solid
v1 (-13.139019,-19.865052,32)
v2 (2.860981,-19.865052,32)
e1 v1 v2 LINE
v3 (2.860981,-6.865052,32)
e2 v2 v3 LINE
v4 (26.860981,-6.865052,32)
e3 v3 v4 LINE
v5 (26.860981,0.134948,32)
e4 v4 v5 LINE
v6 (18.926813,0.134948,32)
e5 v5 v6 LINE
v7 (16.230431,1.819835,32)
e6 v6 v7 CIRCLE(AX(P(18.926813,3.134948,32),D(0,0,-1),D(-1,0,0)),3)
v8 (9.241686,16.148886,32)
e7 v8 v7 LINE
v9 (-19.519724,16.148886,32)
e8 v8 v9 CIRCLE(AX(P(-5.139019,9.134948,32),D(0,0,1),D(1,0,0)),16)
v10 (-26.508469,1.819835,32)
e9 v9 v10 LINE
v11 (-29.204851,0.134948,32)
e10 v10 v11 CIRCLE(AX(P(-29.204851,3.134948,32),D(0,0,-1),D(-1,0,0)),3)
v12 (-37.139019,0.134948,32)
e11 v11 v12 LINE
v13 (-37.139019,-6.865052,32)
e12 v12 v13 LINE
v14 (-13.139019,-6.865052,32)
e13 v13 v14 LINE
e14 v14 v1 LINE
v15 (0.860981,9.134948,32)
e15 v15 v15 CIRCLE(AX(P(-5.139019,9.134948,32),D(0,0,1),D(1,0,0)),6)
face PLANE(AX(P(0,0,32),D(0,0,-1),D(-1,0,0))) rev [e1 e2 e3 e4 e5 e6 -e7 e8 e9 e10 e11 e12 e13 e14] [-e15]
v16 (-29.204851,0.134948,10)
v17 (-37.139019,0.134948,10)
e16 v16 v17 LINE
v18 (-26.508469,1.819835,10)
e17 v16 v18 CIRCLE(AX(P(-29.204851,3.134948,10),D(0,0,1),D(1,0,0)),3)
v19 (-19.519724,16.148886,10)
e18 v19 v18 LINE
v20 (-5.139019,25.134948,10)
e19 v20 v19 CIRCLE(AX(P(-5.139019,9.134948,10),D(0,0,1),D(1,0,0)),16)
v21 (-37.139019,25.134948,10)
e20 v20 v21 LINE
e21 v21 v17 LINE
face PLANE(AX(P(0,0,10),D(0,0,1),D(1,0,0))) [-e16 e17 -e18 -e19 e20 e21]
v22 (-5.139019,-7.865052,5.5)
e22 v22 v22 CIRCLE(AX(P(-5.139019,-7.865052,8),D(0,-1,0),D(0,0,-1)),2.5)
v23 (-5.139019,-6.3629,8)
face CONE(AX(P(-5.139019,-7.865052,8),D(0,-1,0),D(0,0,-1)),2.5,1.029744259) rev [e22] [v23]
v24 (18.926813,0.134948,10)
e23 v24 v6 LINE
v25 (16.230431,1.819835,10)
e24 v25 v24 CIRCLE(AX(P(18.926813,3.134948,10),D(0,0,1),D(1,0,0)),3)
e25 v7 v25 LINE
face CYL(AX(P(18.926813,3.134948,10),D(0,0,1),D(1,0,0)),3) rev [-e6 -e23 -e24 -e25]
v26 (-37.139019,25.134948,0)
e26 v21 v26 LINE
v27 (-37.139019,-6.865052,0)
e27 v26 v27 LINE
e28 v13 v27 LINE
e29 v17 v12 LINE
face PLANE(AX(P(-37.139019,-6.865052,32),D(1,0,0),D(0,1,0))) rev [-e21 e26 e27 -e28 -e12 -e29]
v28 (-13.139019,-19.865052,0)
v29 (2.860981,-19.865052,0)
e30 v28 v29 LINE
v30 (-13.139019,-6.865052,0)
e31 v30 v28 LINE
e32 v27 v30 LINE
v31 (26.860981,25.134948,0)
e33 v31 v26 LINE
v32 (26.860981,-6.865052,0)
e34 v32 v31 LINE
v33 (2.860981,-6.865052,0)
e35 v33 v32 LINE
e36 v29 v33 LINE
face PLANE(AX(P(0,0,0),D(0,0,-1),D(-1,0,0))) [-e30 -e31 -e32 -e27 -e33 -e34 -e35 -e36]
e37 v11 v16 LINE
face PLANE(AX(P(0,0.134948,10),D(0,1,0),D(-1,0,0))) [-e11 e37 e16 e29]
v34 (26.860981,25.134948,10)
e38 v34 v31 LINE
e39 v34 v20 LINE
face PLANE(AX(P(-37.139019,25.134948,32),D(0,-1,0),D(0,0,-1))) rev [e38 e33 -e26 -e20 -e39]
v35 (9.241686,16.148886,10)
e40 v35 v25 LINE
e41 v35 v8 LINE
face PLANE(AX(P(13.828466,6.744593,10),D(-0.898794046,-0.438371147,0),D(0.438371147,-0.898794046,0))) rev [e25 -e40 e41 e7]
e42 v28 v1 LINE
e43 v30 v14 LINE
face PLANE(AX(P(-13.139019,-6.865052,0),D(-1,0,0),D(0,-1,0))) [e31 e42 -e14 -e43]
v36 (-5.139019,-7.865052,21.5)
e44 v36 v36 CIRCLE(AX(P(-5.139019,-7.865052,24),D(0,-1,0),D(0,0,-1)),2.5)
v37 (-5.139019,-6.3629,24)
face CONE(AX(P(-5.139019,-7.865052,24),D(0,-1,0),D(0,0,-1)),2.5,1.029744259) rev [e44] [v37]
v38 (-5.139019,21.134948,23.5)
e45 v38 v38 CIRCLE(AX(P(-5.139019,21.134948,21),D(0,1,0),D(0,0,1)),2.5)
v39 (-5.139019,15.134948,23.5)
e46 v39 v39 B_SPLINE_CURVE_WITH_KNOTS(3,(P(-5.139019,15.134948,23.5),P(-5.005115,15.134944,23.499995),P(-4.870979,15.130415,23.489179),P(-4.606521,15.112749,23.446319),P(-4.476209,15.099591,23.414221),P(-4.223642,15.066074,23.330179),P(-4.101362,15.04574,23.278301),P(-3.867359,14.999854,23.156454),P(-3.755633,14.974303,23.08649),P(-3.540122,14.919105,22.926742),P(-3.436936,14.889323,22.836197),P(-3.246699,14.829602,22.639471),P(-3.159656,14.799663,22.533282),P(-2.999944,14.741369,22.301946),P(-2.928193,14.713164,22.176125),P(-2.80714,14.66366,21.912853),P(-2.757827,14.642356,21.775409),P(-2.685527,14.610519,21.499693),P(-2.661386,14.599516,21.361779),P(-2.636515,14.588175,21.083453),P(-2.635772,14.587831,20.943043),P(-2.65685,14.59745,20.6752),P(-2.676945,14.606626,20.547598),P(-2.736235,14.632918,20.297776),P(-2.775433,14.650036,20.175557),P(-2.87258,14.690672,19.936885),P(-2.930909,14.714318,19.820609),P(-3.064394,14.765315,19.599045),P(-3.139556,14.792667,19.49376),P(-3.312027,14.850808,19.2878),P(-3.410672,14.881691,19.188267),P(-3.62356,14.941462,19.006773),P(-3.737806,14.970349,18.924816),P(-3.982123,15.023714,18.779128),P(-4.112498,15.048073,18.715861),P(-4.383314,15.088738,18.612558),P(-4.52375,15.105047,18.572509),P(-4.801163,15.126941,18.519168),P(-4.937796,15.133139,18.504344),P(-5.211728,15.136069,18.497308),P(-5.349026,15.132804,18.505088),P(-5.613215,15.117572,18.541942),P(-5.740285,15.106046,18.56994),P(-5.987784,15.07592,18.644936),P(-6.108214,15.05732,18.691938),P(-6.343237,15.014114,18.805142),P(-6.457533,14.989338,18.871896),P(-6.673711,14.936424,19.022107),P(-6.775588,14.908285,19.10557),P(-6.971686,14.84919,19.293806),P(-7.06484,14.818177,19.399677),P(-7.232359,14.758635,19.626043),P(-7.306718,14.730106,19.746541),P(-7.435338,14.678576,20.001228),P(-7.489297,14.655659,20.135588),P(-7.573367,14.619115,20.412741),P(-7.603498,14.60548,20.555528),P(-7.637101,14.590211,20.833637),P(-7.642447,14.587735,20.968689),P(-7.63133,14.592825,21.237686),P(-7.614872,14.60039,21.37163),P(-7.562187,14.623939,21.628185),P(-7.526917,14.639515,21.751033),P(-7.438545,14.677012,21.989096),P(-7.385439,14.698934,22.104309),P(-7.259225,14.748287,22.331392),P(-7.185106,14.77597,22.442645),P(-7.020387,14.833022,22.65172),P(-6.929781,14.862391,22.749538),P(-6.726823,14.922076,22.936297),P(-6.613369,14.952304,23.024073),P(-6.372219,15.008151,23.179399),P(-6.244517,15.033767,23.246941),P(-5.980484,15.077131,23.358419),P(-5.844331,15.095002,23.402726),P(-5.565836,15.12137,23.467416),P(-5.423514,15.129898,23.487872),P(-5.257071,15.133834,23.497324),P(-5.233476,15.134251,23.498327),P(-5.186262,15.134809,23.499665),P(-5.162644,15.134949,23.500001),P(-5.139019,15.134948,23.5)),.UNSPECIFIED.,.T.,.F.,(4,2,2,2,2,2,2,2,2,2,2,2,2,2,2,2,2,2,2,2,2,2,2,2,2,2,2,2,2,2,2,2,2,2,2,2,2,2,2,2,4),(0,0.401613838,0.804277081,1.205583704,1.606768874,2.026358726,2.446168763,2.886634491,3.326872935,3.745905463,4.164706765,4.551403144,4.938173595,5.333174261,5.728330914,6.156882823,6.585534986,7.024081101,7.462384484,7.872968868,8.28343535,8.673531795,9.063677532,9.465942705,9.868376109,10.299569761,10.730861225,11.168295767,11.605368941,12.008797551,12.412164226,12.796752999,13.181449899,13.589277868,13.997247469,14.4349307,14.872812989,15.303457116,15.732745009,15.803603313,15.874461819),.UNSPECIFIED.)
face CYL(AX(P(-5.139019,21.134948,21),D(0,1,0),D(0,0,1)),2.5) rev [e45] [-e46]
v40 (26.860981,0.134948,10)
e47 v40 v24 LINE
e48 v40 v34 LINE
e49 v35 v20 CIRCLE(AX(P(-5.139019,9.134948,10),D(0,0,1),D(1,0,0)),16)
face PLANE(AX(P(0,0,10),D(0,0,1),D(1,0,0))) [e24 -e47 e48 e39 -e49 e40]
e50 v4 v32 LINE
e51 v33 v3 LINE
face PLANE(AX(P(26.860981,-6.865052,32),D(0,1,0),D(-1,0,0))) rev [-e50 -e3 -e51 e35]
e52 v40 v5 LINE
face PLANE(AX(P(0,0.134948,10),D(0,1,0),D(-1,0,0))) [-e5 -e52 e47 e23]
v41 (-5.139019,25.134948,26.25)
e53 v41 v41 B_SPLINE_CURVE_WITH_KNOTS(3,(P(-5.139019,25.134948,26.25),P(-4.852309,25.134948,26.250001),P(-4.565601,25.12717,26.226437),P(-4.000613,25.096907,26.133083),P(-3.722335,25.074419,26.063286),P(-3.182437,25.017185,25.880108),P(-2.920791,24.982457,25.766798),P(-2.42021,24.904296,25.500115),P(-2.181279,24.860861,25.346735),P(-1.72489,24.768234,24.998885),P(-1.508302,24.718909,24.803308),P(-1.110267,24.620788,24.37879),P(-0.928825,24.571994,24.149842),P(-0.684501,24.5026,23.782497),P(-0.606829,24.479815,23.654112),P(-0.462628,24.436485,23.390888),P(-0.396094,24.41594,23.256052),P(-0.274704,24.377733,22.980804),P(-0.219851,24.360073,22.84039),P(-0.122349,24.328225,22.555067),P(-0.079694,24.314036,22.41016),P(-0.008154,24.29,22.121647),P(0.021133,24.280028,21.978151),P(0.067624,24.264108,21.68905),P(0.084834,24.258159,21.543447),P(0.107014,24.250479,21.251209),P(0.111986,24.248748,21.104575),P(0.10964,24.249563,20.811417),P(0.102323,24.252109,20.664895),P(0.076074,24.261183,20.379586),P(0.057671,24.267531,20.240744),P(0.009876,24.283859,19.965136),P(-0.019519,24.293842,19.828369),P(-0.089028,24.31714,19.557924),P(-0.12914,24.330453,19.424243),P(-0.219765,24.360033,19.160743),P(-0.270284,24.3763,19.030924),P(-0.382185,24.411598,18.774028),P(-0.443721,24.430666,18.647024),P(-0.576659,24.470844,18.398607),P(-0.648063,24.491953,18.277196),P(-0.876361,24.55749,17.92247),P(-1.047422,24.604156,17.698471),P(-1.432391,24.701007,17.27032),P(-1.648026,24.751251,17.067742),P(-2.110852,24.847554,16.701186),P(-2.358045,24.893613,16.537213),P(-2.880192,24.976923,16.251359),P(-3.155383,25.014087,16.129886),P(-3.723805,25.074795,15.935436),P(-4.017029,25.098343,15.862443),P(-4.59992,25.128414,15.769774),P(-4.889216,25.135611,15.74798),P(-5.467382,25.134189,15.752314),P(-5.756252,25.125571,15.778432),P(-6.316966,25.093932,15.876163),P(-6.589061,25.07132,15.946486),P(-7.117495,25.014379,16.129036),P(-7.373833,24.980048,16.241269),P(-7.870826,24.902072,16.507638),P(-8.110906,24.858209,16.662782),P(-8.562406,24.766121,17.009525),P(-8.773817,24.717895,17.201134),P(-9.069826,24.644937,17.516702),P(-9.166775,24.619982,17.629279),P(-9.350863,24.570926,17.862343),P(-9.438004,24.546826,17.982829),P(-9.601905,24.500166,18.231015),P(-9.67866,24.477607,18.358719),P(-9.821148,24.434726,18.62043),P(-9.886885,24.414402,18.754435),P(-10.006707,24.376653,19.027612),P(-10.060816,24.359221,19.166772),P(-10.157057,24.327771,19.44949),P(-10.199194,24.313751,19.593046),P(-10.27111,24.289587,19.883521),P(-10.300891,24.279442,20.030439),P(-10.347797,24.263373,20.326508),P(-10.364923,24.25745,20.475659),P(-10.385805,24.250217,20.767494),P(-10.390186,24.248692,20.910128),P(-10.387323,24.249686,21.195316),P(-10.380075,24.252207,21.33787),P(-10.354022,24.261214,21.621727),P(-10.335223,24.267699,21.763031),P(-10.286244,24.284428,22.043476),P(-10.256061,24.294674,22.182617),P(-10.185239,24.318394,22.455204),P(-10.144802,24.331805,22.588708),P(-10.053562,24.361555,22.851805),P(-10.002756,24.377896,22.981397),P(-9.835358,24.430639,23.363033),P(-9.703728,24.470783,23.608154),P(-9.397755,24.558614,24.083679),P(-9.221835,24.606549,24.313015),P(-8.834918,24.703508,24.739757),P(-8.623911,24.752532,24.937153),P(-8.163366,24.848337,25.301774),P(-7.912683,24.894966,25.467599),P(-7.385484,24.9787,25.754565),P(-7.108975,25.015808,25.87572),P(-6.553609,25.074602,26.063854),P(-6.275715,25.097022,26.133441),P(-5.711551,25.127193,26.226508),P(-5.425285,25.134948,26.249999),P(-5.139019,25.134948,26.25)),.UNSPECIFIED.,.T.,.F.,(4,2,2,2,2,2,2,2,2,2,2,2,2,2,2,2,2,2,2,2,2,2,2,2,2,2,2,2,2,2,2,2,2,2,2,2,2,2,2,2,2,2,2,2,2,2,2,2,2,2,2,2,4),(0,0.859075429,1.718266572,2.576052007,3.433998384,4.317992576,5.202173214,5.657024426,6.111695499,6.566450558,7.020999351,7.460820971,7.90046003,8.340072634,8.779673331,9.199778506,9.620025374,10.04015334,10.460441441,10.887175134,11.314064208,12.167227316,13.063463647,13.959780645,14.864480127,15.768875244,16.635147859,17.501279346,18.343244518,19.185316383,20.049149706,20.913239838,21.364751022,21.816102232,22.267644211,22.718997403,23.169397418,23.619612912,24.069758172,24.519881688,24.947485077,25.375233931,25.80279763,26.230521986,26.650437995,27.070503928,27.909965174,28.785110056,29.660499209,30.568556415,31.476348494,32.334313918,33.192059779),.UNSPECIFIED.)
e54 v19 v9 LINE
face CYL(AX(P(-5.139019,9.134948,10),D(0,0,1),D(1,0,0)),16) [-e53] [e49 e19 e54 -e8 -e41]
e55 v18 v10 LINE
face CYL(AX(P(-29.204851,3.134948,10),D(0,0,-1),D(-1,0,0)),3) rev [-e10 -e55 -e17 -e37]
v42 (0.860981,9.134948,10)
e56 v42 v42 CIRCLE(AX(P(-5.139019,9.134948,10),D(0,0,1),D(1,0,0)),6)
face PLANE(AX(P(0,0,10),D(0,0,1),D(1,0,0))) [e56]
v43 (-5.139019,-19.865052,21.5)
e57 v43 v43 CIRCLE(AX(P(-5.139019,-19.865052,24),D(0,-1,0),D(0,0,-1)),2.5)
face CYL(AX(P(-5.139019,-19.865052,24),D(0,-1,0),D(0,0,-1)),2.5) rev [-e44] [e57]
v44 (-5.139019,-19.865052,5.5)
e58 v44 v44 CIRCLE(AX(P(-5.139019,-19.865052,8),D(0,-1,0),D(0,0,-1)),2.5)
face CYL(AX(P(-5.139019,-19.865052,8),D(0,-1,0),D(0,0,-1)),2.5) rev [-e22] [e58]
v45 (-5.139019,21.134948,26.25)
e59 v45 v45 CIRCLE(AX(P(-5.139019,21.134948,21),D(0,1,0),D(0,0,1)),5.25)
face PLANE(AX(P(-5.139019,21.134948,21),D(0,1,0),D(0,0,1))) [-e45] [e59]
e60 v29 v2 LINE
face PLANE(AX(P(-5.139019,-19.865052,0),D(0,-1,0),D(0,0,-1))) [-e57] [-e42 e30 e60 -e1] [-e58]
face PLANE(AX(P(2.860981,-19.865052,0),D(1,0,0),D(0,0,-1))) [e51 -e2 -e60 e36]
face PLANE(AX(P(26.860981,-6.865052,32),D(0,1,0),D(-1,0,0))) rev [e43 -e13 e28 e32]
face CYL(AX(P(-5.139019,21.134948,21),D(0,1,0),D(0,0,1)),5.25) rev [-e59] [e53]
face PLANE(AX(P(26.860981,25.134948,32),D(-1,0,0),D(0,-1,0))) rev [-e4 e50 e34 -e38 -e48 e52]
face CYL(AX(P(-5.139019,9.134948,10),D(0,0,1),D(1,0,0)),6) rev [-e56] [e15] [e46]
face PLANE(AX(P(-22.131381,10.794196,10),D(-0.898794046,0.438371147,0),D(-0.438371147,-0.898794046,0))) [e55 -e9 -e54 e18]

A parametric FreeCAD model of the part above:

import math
import FreeCAD as App
import Part
import Sketcher
Q = App.Units.Quantity


def edges_at(feature, points):
    """Names of the edges that pass closest to the given points."""
    edges = feature.Shape.Edges
    near = lambda p: min(range(len(edges)), key=lambda i: edges[i].distToShape(Part.Vertex(*p))[0])
    return sorted({f"Edge{near(p) + 1}" for p in points})


def add_polygon(sketch, points):
    """Adds a closed chain of lines whose ends are joined by coincident constraints."""
    first, n = sketch.GeometryCount, len(points)
    for a, b in zip(points, points[1:] + points[:1]):
        sketch.addGeometry(Part.LineSegment(App.Vector(*a, 0), App.Vector(*b, 0)), False)
    for i in range(n):
        sketch.addConstraint(Sketcher.Constraint("Coincident", first + i, 2, first + (i + 1) % n, 1))

doc = App.newDocument("Part")
body = doc.addObject("PartDesign::Body", "Body")

# Sketch on XY plane
sketch1 = body.newObject("Sketcher::SketchObject", "Sketch")
sketch1.AttachmentSupport = (doc.getObject("XY_Plane"), [""])
sketch1.MapMode = "FlatFace"
add_polygon(sketch1, [(-37, 25), (-37, -7), (27, -7), (27, 25)])  # lines 0-3
sketch1.addConstraint([
    Sketcher.Constraint("Vertical", 0),
    Sketcher.Constraint("Horizontal", 1),
    Sketcher.Constraint("Vertical", 2),
    Sketcher.Constraint("Horizontal", 3),
    Sketcher.Constraint("DistanceX", 1, 1, 1, 2, Q("64 mm")),
    Sketcher.Constraint("DistanceY", 0, 2, 0, 1, Q("32 mm")),
    Sketcher.Constraint("DistanceX", 0, 2, -1, 1, Q("37.139019 mm")),
    Sketcher.Constraint("DistanceY", 0, 2, -1, 1, Q("6.865052 mm")),
])
pad1 = body.newObject("PartDesign::Pad", "Pad")
pad1.Profile = sketch1
pad1.Length = 32

# Sketch on XY plane
sketch2 = body.newObject("Sketcher::SketchObject", "Sketch001")
sketch2.AttachmentSupport = (doc.getObject("XY_Plane"), [""])
sketch2.MapMode = "FlatFace"
sketch2.AttachmentOffset = App.Placement(App.Vector(0, 0, 32), App.Rotation())
add_polygon(sketch2, [(3, -20), (3, -7), (-13, -7), (-13, -20)])  # lines 0-3
sketch2.addConstraint([
    Sketcher.Constraint("Vertical", 0),
    Sketcher.Constraint("Horizontal", 1),
    Sketcher.Constraint("Vertical", 2),
    Sketcher.Constraint("Horizontal", 3),
    Sketcher.Constraint("DistanceX", 1, 2, 1, 1, Q("16 mm")),
    Sketcher.Constraint("DistanceY", 0, 1, 0, 2, Q("13 mm")),
    Sketcher.Constraint("DistanceX", -1, 1, 0, 2, Q("2.860981 mm")),
    Sketcher.Constraint("DistanceY", 0, 2, -1, 1, Q("6.865052 mm")),
])
pad2 = body.newObject("PartDesign::Pad", "Pad001")
pad2.Profile = sketch2
pad2.Length = 32
pad2.Reversed = True

# Sketch on XY plane
sketch3 = body.newObject("Sketcher::SketchObject", "Sketch002")
sketch3.AttachmentSupport = (doc.getObject("XY_Plane"), [""])
sketch3.MapMode = "FlatFace"
sketch3.AttachmentOffset = App.Placement(App.Vector(0, 0, 32), App.Rotation())
sketch3.addGeometry(Part.Circle(App.Vector(-5, 9, 0), App.Vector(0, 0, 1), 6), False)
sketch3.addConstraint([
    Sketcher.Constraint("Diameter", 0, Q("12 mm")),
    Sketcher.Constraint("DistanceX", 0, 3, -1, 1, Q("5.139019 mm")),
    Sketcher.Constraint("DistanceY", -1, 1, 0, 3, Q("9.134948 mm")),
])
pocket1 = body.newObject("PartDesign::Pocket", "Pocket")
pocket1.Profile = sketch3
pocket1.Length = 22

# Sketch on XY plane
sketch4 = body.newObject("Sketcher::SketchObject", "Sketch003")
sketch4.AttachmentSupport = (doc.getObject("XY_Plane"), [""])
sketch4.MapMode = "FlatFace"
sketch4.AttachmentOffset = App.Placement(App.Vector(0, 0, 32), App.Rotation())
sketch4.addGeometry([
    Part.ArcOfCircle(Part.Circle(App.Vector(-5, 9, 0), App.Vector(0, 0, 1), 16), math.radians(90), math.radians(154)),  # 0
    Part.LineSegment(App.Vector(-5, 25, 0), App.Vector(-37, 25, 0)),  # 1
    Part.LineSegment(App.Vector(-37, 25, 0), App.Vector(-37, 0, 0)),  # 2
    Part.LineSegment(App.Vector(-37, 0, 0), App.Vector(-27, 0, 0)),  # 3
    Part.LineSegment(App.Vector(-27, 0, 0), App.Vector(-20, 16, 0)),  # 4
    Part.ArcOfCircle(Part.Circle(App.Vector(-5, 9, 0), App.Vector(0, 0, 1), 16), math.radians(26), math.radians(90)),  # 5
    Part.LineSegment(App.Vector(9, 16, 0), App.Vector(17, 0, 0)),  # 6
    Part.LineSegment(App.Vector(17, 0, 0), App.Vector(27, 0, 0)),  # 7
    Part.LineSegment(App.Vector(27, 0, 0), App.Vector(27, 25, 0)),  # 8
    Part.LineSegment(App.Vector(27, 25, 0), App.Vector(-5, 25, 0)),  # 9
], False)
sketch4.addConstraint([
    Sketcher.Constraint("Tangent", 0, 1, 1, 1),
    Sketcher.Constraint("Coincident", 1, 2, 2, 1),
    Sketcher.Constraint("Coincident", 2, 2, 3, 1),
    Sketcher.Constraint("Coincident", 3, 2, 4, 1),
    Sketcher.Constraint("Tangent", 4, 2, 0, 2),
    Sketcher.Constraint("Tangent", 5, 1, 6, 1),
    Sketcher.Constraint("Coincident", 6, 2, 7, 1),
    Sketcher.Constraint("Coincident", 7, 2, 8, 1),
    Sketcher.Constraint("Coincident", 8, 2, 9, 1),
    Sketcher.Constraint("Tangent", 9, 2, 5, 2),
    Sketcher.Constraint("Horizontal", 1),
    Sketcher.Constraint("Vertical", 2),
    Sketcher.Constraint("Horizontal", 3),
    Sketcher.Constraint("Horizontal", 7),
    Sketcher.Constraint("Vertical", 8),
    Sketcher.Constraint("Horizontal", 9),
    Sketcher.Constraint("Coincident", 5, 3, 0, 3),
    Sketcher.Constraint("Equal", 0, 5),
    Sketcher.Constraint("Horizontal", 4, 2, 5, 1),
    Sketcher.Constraint("Horizontal", 3, 2, 6, 2),
    Sketcher.Constraint("Equal", 3, 7),
    Sketcher.Constraint("Radius", 0, Q("16 mm")),
    Sketcher.Constraint("DistanceX", 1, 2, 1, 1, Q("32 mm")),
    Sketcher.Constraint("DistanceY", 2, 2, 2, 1, Q("25 mm")),
    Sketcher.Constraint("Angle", 4, Q("64 deg")),
    Sketcher.Constraint("DistanceX", 0, 3, -1, 1, Q("5.139019 mm")),
    Sketcher.Constraint("DistanceY", -1, 1, 0, 3, Q("9.134948 mm")),
])
pocket2 = body.newObject("PartDesign::Pocket", "Pocket001")
pocket2.Profile = sketch4
pocket2.Length = 22
doc.recompute()

fillet = body.newObject("PartDesign::Fillet", "Fillet")
fillet.Base = (pocket2, edges_at(pocket2, [(-27.33, 0.135, 21), (17.052, 0.135, 21)]))
fillet.Radius = 3

# Sketch on XZ plane
sketch5 = body.newObject("Sketcher::SketchObject", "Sketch004")
sketch5.AttachmentSupport = (doc.getObject("XZ_Plane"), [""])
sketch5.MapMode = "FlatFace"
sketch5.AttachmentOffset = App.Placement(App.Vector(0, 0, -25.134948), App.Rotation())
sketch5.addGeometry(Part.Circle(App.Vector(-5, 21, 0), App.Vector(0, 0, 1), 5), False)
sketch5.addConstraint([
    Sketcher.Constraint("Diameter", 0, Q("10.5 mm")),
    Sketcher.Constraint("DistanceY", -1, 1, 0, 3, Q("21 mm")),
    Sketcher.Constraint("DistanceX", 0, 3, -1, 1, Q("5.139019 mm")),
])
pocket3 = body.newObject("PartDesign::Pocket", "Pocket002")
pocket3.Profile = sketch5
pocket3.Length = 4
pocket3.Reversed = True

# Sketch on XZ plane
sketch6 = body.newObject("Sketcher::SketchObject", "Sketch005")
sketch6.AttachmentSupport = (doc.getObject("XZ_Plane"), [""])
sketch6.MapMode = "FlatFace"
sketch6.AttachmentOffset = App.Placement(App.Vector(0, 0, -21.134948), App.Rotation())
sketch6.addGeometry(Part.Circle(App.Vector(-5.1, 21, 0), App.Vector(0, 0, 1), 2.5), False)
sketch6.addConstraint([
    Sketcher.Constraint("Diameter", 0, Q("5 mm")),
    Sketcher.Constraint("DistanceY", -1, 1, 0, 3, Q("21 mm")),
    Sketcher.Constraint("DistanceX", 0, 3, -1, 1, Q("5.139019 mm")),
])
pocket4 = body.newObject("PartDesign::Pocket", "Pocket003")
pocket4.Profile = sketch6
pocket4.Type = "UpToFirst"
pocket4.Reversed = True

# Sketch on XZ plane
sketch7 = body.newObject("Sketcher::SketchObject", "Sketch006")
sketch7.AttachmentSupport = (doc.getObject("XZ_Plane"), [""])
sketch7.MapMode = "FlatFace"
sketch7.AttachmentOffset = App.Placement(App.Vector(0, 0, 19.865052), App.Rotation())
sketch7.addGeometry([
    Part.Circle(App.Vector(-5.1, 24, 0), App.Vector(0, 0, 1), 2.5),
    Part.Circle(App.Vector(-5.1, 8, 0), App.Vector(0, 0, 1), 2.5),
], False)
sketch7.addConstraint([
    Sketcher.Constraint("Equal", 0, 1),
    Sketcher.Constraint("Vertical", 0, 3, 1, 3),
    Sketcher.Constraint("Diameter", 0, Q("5 mm")),
    Sketcher.Constraint("DistanceY", -1, 1, 0, 3, Q("24 mm")),
    Sketcher.Constraint("DistanceY", -1, 1, 1, 3, Q("8 mm")),
    Sketcher.Constraint("DistanceX", 0, 3, -1, 1, Q("5.139019 mm")),
])
doc.recompute()
hole = body.newObject("PartDesign::Hole", "Hole")
hole.Profile = sketch7
hole.ThreadType = "None"
hole.Diameter = 5
hole.DepthType = "Dimension"
hole.Depth = 12
hole.DrillPoint = "Angled"
hole.DrillPointAngle = 118

doc.recompute()
